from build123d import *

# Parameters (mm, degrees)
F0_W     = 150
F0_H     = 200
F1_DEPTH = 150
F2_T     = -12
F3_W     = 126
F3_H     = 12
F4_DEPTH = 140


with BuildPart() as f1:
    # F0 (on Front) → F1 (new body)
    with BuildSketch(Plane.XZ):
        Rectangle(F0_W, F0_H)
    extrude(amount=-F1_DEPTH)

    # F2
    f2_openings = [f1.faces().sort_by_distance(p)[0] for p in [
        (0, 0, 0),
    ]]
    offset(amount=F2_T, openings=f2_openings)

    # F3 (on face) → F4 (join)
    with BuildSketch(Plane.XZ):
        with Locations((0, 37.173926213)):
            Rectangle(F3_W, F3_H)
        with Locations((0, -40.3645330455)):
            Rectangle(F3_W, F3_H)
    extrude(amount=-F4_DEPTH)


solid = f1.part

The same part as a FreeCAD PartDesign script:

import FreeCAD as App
import Part
import Sketcher
from FreeCAD import Vector


def faces_at(feature, points):
    """Names of the faces that lie closest to the given points."""
    faces = feature.Shape.Faces
    near = lambda p: min(range(len(faces)), key=lambda i: faces[i].distToShape(Part.Vertex(*p))[0])
    return sorted({f"Face{near(p) + 1}" for p in points})


def add_polygon(sketch, points):
    """Adds a closed chain of lines whose ends are joined by coincident constraints."""
    first, n = sketch.GeometryCount, len(points)
    for a, b in zip(points, points[1:] + points[:1]):
        sketch.addGeometry(Part.LineSegment(App.Vector(*a, 0), App.Vector(*b, 0)), False)
    for i in range(n):
        sketch.addConstraint(Sketcher.Constraint("Coincident", first + i, 2, first + (i + 1) % n, 1))

doc = App.newDocument("Part")
body = doc.addObject("PartDesign::Body", "Body")

# Sketch on XZ plane
sketch1 = body.newObject("Sketcher::SketchObject", "Sketch")
sketch1.AttachmentSupport = (doc.getObject("XZ_Plane"), [""])
sketch1.MapMode = "FlatFace"
add_polygon(sketch1, [(-75, 100), (-75, -100), (75, -100), (75, 100)])  # lines 0-3
sketch1.addConstraint([
    Sketcher.Constraint("Vertical", 0),
    Sketcher.Constraint("Horizontal", 1),
    Sketcher.Constraint("Vertical", 2),
    Sketcher.Constraint("Horizontal", 3),
    Sketcher.Constraint("Symmetric", 0, 2, 2, 2, -1, 1),
    Sketcher.Constraint("DistanceX", 1, 1, 1, 2, 150.0),
    Sketcher.Constraint("DistanceY", 0, 2, 0, 1, 200.0),
])
pad1 = body.newObject("PartDesign::Pad", "Pad")
pad1.Profile = sketch1
pad1.Length = 150
pad1.Reversed = True
doc.recompute()

thickness = body.newObject("PartDesign::Thickness", "Thickness")
thickness.Base = (pad1, faces_at(pad1, [(0, 0, 0)]))
thickness.Value = 12
thickness.Reversed = True
thickness.Join = "Arc"

# Sketch on XZ plane
sketch2 = body.newObject("Sketcher::SketchObject", "Sketch001")
sketch2.AttachmentSupport = (doc.getObject("XZ_Plane"), [""])
sketch2.MapMode = "FlatFace"
add_polygon(sketch2, [(-63, 43), (-63, 31), (63, 31), (63, 43)])  # lines 0-3
add_polygon(sketch2, [(-63, -34), (-63, -46), (63, -46), (63, -34)])  # lines 4-7
sketch2.addConstraint([
    Sketcher.Constraint("Vertical", 0),
    Sketcher.Constraint("Horizontal", 1),
    Sketcher.Constraint("Vertical", 2),
    Sketcher.Constraint("Horizontal", 3),
    Sketcher.Constraint("Vertical", 4),
    Sketcher.Constraint("Horizontal", 5),
    Sketcher.Constraint("Vertical", 6),
    Sketcher.Constraint("Horizontal", 7),
    Sketcher.Constraint("Vertical", 3, 2, 4, 2),
    Sketcher.Constraint("Vertical", 2, 2, 5, 2),
    Sketcher.Constraint("Equal", 2, 4),
    Sketcher.Constraint("DistanceX", 1, 1, 1, 2, 126.0),
    Sketcher.Constraint("DistanceY", 0, 2, 0, 1, 12.0),
    Sketcher.Constraint("DistanceX", 0, 2, -1, 1, 63.0),
    Sketcher.Constraint("DistanceY", 4, 2, 0, 2, 77.538459),
    Sketcher.Constraint("DistanceY", -1, 1, 0, 2, 31.173926),
])
pad2 = body.newObject("PartDesign::Pad", "Pad001")
pad2.Profile = sketch2
pad2.Length = 140
pad2.Reversed = True

doc.recompute()
